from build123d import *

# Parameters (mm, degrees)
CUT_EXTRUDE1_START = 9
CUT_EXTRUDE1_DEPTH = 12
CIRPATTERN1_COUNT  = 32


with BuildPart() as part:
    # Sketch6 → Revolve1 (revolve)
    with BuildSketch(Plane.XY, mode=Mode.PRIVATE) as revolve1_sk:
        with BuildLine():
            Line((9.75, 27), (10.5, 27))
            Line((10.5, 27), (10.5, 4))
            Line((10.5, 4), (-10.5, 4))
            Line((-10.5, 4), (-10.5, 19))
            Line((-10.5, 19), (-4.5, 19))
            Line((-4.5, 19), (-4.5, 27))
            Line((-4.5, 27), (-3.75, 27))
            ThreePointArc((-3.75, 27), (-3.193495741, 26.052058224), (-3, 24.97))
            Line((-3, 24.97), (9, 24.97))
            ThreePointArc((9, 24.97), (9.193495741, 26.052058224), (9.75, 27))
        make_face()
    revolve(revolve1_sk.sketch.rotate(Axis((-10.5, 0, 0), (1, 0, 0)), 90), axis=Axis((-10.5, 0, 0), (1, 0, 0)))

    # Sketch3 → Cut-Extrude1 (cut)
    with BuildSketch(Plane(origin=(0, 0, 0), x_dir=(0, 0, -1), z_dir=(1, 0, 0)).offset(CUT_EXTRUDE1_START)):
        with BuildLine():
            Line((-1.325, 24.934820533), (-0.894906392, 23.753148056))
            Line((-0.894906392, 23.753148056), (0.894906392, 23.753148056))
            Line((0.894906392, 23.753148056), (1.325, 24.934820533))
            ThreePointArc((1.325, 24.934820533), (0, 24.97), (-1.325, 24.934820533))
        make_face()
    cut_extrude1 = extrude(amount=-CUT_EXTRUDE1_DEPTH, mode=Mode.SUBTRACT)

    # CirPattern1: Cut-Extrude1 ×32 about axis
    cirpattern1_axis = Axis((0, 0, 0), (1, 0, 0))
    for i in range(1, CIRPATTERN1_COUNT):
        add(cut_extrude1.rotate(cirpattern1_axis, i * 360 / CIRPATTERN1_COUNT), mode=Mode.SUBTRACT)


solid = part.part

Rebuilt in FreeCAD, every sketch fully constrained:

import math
import FreeCAD as App
import Part
import Sketcher
from FreeCAD import Vector
Q = App.Units.Quantity

doc = App.newDocument("Part")
body = doc.addObject("PartDesign::Body", "Body")

sketch1 = body.newObject("Sketcher::SketchObject", "Sketch")
sketch1.AttachmentSupport = (doc.getObject("XY_Plane"), [""])
sketch1.MapMode = "FlatFace"
sketch1.addGeometry([
    Part.LineSegment(Vector(10.5, 27, 0), Vector(9.8, 27, 0)),
    Part.ArcOfCircle(Part.Circle(Vector(12.1, 25, 0), Vector(0, 0, 1), 3.1), math.radians(139), math.radians(180)),
    Part.LineSegment(Vector(9, 25, 0), Vector(-3, 25, 0)),
    Part.ArcOfCircle(Part.Circle(Vector(-6.1, 25, 0), Vector(0, 0, 1), 3.1), math.radians(0), math.radians(41)),
    Part.LineSegment(Vector(-3.8, 27, 0), Vector(-4.5, 27, 0)),
    Part.LineSegment(Vector(-4.5, 27, 0), Vector(-4.5, 19, 0)),
    Part.LineSegment(Vector(-4.5, 19, 0), Vector(-10.5, 19, 0)),
    Part.LineSegment(Vector(-10.5, 19, 0), Vector(-10.5, 4, 0)),
    Part.LineSegment(Vector(-10.5, 4, 0), Vector(10.5, 4, 0)),
    Part.LineSegment(Vector(10.5, 4, 0), Vector(10.5, 27, 0)),
], False)
sketch1.addConstraint([
    Sketcher.Constraint("Coincident", 0, 2, 1, 1),
    Sketcher.Constraint("Coincident", 1, 2, 2, 1),
    Sketcher.Constraint("Coincident", 2, 2, 3, 1),
    Sketcher.Constraint("Coincident", 3, 2, 4, 1),
    Sketcher.Constraint("Coincident", 4, 2, 5, 1),
    Sketcher.Constraint("Coincident", 5, 2, 6, 1),
    Sketcher.Constraint("Coincident", 6, 2, 7, 1),
    Sketcher.Constraint("Coincident", 7, 2, 8, 1),
    Sketcher.Constraint("Coincident", 8, 2, 9, 1),
    Sketcher.Constraint("Coincident", 9, 2, 0, 1),
    Sketcher.Constraint("Horizontal", 0),
    Sketcher.Constraint("Horizontal", 2),
    Sketcher.Constraint("Horizontal", 4),
    Sketcher.Constraint("Vertical", 5),
    Sketcher.Constraint("Horizontal", 6),
    Sketcher.Constraint("Vertical", 7),
    Sketcher.Constraint("Horizontal", 8),
    Sketcher.Constraint("Vertical", 9),
    Sketcher.Constraint("Equal", 1, 3),
    Sketcher.Constraint("Horizontal", 1, 3, 3, 3),
    Sketcher.Constraint("Horizontal", 3, 3, 1, 2),
    Sketcher.Constraint("Horizontal", 0, 2, 3, 2),
    Sketcher.Constraint("Equal", 0, 4),
    Sketcher.Constraint("DistanceX", 2, 2, 2, 1, 12.0),
    Sketcher.Constraint("DistanceX", 6, 2, 6, 1, 6.0),
    Sketcher.Constraint("DistanceX", 8, 1, 8, 2, 21.0),
    Sketcher.Constraint("DistanceY", 5, 2, 5, 1, 8.0),
    Sketcher.Constraint("DistanceY", 7, 2, 7, 1, 15.0),
    Sketcher.Constraint("DistanceY", -1, 1, 0, 2, 27.0),
    Sketcher.Constraint("DistanceX", -1, 1, 1, 2, 9.0),
    Sketcher.Constraint("DistanceX", 0, 2, 0, 1, 0.75),
    Sketcher.Constraint("DistanceY", -1, 1, 1, 3, 24.97),
])
revolution = body.newObject("PartDesign::Revolution", "Revolution")
revolution.Profile = sketch1
revolution.ReferenceAxis = (sketch1, ["H_Axis"])
revolution.Angle = 360

sketch2 = body.newObject("Sketcher::SketchObject", "Sketch001")
sketch2.AttachmentSupport = (doc.getObject("YZ_Plane"), [""])
sketch2.MapMode = "FlatFace"
sketch2.AttachmentOffset = App.Placement(Vector(0, 0, 9), App.Rotation())
sketch2.addGeometry([
    Part.LineSegment(Vector(24.9, 1.3, 0), Vector(23.8, 0.9, 0)),
    Part.LineSegment(Vector(23.8, 0.9, 0), Vector(23.8, -0.9, 0)),
    Part.LineSegment(Vector(23.8, -0.9, 0), Vector(24.9, -1.3, 0)),
    Part.ArcOfCircle(Part.Circle(Vector(0, 0, 0), Vector(0, 0, 1), 25), math.radians(-3.04), math.radians(3.04)),
], False)
sketch2.addConstraint([
    Sketcher.Constraint("Coincident", 0, 2, 1, 1),
    Sketcher.Constraint("Coincident", 1, 2, 2, 1),
    Sketcher.Constraint("Coincident", 2, 2, 3, 1),
    Sketcher.Constraint("Coincident", 3, 2, 0, 1),
    Sketcher.Constraint("Vertical", 1),
    Sketcher.Constraint("Coincident", 3, 3, -1, 1),
    Sketcher.Constraint("Vertical", 2, 2, 3, 2),
    Sketcher.Constraint("Equal", 0, 2),
    Sketcher.Constraint("Angle", 0, Q("-160 deg")),
    Sketcher.Constraint("Radius", 3, 24.97),
    Sketcher.Constraint("DistanceY", 2, 2, 3, 2, 2.65),
    Sketcher.Constraint("Distance", 0, 1.25751),
])
pocket1 = body.newObject("PartDesign::Pocket", "Pocket")
pocket1.Profile = sketch2
pocket1.Length = 12
doc.recompute()

polarpattern = body.newObject("PartDesign::PolarPattern", "PolarPattern")
polarpattern.Originals = [pocket1]
polarpattern.Axis = (doc.getObject("X_Axis"), [""])
polarpattern.Angle = 360
polarpattern.Occurrences = 32
body.Tip = polarpattern

doc.recompute()
